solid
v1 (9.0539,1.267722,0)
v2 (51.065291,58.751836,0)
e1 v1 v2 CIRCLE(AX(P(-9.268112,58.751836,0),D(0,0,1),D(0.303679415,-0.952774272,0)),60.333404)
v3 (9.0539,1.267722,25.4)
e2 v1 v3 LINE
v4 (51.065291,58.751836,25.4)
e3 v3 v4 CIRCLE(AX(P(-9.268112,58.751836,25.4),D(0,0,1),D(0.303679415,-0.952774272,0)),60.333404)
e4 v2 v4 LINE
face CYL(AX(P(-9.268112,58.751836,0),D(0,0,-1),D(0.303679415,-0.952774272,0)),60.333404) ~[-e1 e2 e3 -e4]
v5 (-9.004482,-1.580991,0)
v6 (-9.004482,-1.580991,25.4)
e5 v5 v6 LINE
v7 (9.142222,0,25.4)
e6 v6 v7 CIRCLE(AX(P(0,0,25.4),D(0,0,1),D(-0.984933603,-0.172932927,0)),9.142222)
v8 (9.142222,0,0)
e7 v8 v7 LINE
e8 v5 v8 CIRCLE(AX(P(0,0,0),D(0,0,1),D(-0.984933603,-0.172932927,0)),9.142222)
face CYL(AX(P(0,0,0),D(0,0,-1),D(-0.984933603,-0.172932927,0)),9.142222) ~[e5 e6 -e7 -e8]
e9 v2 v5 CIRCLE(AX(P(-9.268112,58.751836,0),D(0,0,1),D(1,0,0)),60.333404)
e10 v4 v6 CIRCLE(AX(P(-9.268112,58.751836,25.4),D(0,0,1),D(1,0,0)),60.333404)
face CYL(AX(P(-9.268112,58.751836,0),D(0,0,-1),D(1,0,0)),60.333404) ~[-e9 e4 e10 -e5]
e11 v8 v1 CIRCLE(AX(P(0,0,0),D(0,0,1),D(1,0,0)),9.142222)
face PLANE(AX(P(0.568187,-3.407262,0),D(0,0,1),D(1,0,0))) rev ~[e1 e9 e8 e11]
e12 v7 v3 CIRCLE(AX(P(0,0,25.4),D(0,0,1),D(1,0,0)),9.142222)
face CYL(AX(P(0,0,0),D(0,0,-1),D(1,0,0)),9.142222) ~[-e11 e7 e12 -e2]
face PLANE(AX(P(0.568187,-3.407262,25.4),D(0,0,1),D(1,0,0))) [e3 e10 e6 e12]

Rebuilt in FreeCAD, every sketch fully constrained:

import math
import FreeCAD as App
import Part
import Sketcher

V = App.Vector
Q = App.Units.Quantity

doc = App.newDocument("Part")
body = doc.addObject("PartDesign::Body", "Body")

sketch1 = body.newObject("Sketcher::SketchObject", "Sketch")
sketch1.AttachmentSupport = (doc.getObject("XY_Plane"), [""])
sketch1.MapMode = "FlatFace"
sketch1.addGeometry(Part.ArcOfCircle(Part.Circle(V(0, 0, 0), V(0, 0, 1), 9.1), math.radians(-170), math.radians(0)), False)
sketch1.addGeometry(Part.ArcOfCircle(Part.Circle(V(0, 0, 0), V(0, 0, 1), 9.1), math.radians(0), math.radians(7.97)), False)
sketch1.addGeometry(Part.ArcOfCircle(Part.Circle(V(-9.3, 58.8, 0), V(0, 0, 1), 60.3), math.radians(-72), math.radians(0)), False)
sketch1.addGeometry(Part.ArcOfCircle(Part.Circle(V(-9.3, 58.8, 0), V(0, 0, 1), 60.3), math.radians(0), math.radians(270)), False)
sketch1.addConstraint(Sketcher.Constraint("Tangent", 0, 2, 1, 1))
sketch1.addConstraint(Sketcher.Constraint("Coincident", 1, 2, 2, 1))
sketch1.addConstraint(Sketcher.Constraint("Tangent", 2, 2, 3, 1))
sketch1.addConstraint(Sketcher.Constraint("Coincident", 3, 2, 0, 1))
sketch1.addConstraint(Sketcher.Constraint("Coincident", 0, 3, -1, 1))
sketch1.addConstraint(Sketcher.Constraint("Equal", 0, 1))
sketch1.addConstraint(Sketcher.Constraint("Equal", 2, 3))
sketch1.addConstraint(Sketcher.Constraint("PointOnObject", 0, 2, -1))
sketch1.addConstraint(Sketcher.Constraint("Horizontal", 3, 3, 2, 2))
sketch1.addConstraint(Sketcher.Constraint("Radius", 0, 9.142222))
sketch1.addConstraint(Sketcher.Constraint("Radius", 2, 60.333404))
sketch1.addConstraint(Sketcher.Constraint("DistanceX", -1, 1, 1, 2, 9.0539))
sketch1.addConstraint(Sketcher.Constraint("DistanceX", -1, 1, 2, 2, 51.065291))
pad1 = body.newObject("PartDesign::Pad", "Pad")
pad1.Profile = sketch1
pad1.Length = Q("1 in")

doc.recompute()
